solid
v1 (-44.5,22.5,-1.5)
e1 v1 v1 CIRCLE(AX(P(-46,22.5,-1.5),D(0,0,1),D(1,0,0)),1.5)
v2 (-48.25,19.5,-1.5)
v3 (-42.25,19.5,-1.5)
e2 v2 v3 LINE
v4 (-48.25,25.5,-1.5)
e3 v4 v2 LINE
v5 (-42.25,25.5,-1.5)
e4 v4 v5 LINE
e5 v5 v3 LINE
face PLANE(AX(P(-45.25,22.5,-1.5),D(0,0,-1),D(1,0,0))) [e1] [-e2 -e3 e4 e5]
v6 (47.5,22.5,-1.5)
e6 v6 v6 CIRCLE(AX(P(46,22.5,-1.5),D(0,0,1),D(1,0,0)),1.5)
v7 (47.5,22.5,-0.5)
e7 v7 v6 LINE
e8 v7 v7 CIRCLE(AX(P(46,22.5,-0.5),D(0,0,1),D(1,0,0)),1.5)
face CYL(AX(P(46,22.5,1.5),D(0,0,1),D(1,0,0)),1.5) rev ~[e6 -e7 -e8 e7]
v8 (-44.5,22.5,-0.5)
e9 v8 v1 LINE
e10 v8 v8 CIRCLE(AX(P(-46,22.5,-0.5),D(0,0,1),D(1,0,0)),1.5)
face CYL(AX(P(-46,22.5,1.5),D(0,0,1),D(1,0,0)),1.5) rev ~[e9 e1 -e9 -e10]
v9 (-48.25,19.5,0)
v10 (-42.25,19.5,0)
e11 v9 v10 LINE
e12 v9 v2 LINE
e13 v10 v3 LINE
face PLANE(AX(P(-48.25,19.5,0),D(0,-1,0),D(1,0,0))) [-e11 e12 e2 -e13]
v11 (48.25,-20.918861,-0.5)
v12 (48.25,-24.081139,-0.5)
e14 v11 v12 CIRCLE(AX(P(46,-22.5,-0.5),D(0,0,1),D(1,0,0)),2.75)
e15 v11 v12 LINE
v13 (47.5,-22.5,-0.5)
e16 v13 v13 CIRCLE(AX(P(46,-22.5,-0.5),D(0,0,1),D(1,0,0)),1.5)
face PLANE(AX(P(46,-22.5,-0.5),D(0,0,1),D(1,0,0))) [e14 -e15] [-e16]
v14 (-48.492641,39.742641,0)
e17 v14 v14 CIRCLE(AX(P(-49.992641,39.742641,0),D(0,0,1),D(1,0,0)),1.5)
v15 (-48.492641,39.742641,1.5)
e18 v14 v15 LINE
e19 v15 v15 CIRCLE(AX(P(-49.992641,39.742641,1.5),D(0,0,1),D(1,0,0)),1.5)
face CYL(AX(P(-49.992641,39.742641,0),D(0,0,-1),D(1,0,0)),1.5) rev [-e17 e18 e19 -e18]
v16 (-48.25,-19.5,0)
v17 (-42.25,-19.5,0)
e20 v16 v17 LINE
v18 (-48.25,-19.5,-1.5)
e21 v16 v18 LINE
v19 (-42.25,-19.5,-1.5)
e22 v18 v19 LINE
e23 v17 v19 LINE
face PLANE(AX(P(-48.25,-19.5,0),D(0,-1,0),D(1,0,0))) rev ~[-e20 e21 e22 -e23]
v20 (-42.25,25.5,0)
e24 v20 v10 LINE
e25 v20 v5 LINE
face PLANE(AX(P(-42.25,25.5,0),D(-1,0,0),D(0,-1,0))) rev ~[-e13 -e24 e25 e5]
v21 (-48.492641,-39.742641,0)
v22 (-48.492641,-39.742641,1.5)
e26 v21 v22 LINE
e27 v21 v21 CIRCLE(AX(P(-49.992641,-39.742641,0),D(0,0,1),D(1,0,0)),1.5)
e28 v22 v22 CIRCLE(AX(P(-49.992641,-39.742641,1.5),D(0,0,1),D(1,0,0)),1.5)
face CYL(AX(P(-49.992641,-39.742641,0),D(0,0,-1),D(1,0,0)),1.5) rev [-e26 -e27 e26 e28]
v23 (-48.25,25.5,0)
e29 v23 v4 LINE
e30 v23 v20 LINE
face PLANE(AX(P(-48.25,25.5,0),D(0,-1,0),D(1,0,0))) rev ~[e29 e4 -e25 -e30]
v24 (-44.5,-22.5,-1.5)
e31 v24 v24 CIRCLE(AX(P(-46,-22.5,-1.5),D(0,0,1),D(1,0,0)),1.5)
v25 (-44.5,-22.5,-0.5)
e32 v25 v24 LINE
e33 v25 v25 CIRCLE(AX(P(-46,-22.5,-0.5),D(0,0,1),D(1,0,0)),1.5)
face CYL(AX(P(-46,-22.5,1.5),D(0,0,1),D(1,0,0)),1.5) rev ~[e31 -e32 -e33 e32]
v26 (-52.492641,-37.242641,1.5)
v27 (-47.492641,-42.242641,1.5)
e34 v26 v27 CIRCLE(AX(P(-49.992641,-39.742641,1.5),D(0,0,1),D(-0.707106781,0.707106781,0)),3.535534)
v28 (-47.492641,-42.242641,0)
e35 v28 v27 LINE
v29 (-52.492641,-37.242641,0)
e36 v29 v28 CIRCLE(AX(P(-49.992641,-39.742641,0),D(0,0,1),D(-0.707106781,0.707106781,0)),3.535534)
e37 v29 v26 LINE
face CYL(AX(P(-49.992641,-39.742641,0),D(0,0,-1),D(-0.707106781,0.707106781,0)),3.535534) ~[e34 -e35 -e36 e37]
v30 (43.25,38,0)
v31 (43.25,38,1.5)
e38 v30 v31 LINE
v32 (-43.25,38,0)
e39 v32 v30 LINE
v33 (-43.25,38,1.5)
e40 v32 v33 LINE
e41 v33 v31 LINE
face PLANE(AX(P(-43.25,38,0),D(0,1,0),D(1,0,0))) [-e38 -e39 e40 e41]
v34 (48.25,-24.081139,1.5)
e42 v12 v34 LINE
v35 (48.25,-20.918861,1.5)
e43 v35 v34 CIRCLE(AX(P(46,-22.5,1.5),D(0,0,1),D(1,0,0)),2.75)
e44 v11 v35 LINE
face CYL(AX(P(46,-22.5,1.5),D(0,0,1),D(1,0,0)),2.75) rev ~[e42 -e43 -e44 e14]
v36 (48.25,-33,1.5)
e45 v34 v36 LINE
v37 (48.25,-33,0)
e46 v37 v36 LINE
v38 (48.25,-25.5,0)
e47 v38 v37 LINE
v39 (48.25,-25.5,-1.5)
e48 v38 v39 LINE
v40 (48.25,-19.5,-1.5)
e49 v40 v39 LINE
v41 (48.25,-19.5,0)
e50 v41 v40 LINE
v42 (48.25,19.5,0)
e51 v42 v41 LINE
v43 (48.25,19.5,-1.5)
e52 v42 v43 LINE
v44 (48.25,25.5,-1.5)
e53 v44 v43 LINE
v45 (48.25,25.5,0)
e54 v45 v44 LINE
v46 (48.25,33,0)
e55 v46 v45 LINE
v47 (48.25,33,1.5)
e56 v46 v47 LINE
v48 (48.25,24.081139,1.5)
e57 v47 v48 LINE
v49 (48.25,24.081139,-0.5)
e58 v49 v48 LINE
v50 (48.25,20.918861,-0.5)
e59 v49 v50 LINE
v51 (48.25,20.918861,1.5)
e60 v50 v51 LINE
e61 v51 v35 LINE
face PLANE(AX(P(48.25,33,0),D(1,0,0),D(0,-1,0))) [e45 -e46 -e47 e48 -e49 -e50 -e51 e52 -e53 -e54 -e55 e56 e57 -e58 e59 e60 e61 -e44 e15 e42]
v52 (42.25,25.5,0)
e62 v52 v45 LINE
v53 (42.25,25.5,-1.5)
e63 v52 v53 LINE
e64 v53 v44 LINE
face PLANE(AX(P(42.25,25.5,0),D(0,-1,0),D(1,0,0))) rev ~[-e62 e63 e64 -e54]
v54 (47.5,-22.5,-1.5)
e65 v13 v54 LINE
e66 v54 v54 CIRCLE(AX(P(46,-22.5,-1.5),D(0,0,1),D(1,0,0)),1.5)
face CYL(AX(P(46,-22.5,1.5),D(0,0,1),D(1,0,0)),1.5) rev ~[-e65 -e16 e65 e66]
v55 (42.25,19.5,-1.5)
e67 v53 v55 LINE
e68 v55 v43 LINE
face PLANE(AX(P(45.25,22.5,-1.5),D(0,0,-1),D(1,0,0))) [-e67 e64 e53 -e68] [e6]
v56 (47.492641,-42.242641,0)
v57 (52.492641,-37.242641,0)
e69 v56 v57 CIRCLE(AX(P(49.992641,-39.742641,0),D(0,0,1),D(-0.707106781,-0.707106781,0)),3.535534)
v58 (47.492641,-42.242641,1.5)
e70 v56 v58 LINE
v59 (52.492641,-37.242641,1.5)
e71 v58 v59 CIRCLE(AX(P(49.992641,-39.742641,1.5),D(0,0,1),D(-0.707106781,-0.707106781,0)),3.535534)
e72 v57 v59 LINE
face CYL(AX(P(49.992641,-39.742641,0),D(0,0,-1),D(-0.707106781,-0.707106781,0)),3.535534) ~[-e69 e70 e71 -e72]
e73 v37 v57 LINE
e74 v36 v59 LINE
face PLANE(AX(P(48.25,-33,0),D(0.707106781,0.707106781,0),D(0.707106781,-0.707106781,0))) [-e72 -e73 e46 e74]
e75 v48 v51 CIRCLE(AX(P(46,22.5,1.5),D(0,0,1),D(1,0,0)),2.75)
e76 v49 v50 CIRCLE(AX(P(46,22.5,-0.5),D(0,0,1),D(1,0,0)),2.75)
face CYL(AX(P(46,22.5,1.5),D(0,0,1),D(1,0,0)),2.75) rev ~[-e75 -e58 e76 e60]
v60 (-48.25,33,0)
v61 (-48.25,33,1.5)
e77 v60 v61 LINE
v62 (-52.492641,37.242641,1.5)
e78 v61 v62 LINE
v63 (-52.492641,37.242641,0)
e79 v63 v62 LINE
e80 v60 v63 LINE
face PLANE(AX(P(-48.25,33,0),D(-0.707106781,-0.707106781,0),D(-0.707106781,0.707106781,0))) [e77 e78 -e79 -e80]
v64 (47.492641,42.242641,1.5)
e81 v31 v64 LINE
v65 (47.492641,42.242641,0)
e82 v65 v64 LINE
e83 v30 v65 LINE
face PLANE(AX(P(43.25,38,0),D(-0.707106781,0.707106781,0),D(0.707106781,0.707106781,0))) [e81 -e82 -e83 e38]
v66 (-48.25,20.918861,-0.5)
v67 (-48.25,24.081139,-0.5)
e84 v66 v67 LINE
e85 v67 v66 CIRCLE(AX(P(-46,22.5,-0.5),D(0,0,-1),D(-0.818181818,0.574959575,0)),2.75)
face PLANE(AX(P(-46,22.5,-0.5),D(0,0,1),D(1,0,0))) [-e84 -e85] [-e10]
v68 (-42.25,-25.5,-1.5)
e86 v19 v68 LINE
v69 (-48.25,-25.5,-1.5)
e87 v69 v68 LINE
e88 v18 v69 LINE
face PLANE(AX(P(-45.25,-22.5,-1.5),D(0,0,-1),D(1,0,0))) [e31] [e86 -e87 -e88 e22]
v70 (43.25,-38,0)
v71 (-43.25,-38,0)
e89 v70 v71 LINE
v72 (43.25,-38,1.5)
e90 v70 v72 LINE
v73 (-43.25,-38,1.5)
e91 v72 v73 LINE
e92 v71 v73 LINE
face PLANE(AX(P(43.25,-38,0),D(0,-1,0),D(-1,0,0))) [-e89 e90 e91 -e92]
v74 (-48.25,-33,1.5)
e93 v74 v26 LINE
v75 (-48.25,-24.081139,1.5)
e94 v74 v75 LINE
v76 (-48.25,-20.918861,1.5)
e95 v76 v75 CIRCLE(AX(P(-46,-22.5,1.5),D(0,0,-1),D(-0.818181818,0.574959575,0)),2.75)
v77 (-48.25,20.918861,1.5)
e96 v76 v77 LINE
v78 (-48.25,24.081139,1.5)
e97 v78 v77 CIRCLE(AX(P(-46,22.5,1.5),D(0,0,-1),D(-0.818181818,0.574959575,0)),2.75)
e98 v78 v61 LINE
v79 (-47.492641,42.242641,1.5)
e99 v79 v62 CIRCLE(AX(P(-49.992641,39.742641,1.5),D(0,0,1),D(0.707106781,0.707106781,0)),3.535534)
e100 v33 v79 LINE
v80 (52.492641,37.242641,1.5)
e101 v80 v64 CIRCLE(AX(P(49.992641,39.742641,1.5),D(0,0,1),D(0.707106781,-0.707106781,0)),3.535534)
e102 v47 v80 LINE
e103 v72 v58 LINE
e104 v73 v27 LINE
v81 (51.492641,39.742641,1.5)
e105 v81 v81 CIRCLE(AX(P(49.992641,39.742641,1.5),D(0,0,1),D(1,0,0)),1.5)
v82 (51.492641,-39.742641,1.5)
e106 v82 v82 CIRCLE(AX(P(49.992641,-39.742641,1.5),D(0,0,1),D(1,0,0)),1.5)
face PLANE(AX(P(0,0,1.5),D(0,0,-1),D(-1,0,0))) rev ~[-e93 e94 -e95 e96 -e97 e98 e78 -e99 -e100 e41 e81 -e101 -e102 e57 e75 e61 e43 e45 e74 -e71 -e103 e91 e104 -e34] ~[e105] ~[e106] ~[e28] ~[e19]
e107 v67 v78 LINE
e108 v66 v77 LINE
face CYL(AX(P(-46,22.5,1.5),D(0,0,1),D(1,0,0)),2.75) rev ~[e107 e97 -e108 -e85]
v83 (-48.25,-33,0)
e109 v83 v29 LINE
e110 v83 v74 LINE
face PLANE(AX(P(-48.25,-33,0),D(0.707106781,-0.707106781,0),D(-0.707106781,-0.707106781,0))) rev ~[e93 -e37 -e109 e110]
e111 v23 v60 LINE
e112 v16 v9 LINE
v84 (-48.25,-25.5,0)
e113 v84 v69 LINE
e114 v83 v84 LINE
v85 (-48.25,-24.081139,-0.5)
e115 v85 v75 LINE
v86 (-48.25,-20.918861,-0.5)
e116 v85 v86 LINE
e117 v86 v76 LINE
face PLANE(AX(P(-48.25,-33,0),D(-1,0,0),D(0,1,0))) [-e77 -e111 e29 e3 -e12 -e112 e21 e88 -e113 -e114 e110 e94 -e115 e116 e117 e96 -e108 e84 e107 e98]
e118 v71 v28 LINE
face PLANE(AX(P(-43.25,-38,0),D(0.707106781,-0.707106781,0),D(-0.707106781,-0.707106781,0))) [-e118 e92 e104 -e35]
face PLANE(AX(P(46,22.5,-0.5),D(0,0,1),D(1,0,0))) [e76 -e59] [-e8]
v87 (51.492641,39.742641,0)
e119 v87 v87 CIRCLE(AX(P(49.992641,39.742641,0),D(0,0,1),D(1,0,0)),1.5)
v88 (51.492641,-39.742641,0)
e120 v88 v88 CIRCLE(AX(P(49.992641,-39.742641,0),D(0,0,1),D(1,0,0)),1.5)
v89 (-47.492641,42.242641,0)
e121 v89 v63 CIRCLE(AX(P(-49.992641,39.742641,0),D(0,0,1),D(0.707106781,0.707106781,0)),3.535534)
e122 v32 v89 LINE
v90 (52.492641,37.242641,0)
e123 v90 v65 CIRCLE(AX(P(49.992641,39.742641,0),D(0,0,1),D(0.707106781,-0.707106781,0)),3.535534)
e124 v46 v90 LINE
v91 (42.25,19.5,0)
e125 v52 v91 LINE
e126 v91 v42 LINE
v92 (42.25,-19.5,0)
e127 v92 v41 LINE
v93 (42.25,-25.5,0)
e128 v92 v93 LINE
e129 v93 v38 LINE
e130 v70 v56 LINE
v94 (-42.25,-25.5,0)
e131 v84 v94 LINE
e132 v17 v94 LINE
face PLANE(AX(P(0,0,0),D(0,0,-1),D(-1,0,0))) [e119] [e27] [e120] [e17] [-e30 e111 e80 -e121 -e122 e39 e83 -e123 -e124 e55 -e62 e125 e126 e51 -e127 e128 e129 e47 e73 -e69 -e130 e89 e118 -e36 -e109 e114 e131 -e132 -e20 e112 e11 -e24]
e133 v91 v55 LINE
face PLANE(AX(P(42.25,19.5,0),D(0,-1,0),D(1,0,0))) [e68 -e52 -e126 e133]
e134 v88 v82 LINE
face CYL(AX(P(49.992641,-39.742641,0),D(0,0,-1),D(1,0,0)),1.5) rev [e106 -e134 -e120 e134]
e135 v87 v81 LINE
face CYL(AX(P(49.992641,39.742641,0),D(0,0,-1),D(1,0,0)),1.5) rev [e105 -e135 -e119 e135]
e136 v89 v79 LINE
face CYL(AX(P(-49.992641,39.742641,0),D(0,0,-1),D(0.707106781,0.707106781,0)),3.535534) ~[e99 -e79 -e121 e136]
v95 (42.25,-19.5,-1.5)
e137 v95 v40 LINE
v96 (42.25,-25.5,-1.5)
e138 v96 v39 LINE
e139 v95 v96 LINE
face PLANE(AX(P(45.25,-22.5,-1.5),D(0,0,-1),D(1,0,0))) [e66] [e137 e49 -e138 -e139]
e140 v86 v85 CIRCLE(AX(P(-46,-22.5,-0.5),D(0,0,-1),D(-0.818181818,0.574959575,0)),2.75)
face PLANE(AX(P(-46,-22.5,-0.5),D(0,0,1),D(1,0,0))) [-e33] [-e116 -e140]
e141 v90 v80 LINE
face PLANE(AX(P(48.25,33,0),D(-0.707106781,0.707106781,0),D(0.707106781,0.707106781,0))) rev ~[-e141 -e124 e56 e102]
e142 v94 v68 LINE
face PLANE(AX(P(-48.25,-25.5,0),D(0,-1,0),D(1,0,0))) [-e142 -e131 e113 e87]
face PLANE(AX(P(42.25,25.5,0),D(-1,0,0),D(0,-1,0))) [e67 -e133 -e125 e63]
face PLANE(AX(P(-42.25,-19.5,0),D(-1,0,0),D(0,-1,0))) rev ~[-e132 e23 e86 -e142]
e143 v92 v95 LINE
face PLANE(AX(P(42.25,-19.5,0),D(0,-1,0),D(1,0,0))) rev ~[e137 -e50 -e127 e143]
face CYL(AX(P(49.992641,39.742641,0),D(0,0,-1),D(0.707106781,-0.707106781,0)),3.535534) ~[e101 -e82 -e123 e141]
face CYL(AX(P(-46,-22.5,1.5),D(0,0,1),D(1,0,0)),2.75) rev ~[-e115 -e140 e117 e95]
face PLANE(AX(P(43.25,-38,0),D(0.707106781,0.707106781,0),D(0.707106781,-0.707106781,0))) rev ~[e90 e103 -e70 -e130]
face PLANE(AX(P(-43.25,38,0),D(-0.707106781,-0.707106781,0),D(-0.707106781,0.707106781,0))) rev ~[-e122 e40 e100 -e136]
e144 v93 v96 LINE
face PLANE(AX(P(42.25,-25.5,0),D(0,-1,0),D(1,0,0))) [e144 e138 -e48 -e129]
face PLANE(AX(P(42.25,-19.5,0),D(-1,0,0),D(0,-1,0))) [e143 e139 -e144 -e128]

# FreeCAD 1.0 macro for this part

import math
import FreeCAD as App
import Part
import Sketcher
from FreeCAD import Vector


def add_polygon(sketch, points):
    """Adds a closed chain of lines whose ends are joined by coincident constraints."""
    first, n = sketch.GeometryCount, len(points)
    for a, b in zip(points, points[1:] + points[:1]):
        sketch.addGeometry(Part.LineSegment(App.Vector(*a, 0), App.Vector(*b, 0)), False)
    for i in range(n):
        sketch.addConstraint(Sketcher.Constraint("Coincident", first + i, 2, first + (i + 1) % n, 1))

doc = App.newDocument("Part")
body = doc.addObject("PartDesign::Body", "Body")

# Sketch on XY plane
sketch1 = doc.addObject("Sketcher::SketchObject", "Sketch")
body.addObject(sketch1)
sketch1.AttachmentSupport = (doc.XY_Plane, [""])
sketch1.MapMode = "FlatFace"
sketch1.addGeometry([
    Part.LineSegment(Vector(-48.2, 33, 0), Vector(-48.2, -33, 0)),  # 0
    Part.LineSegment(Vector(-48.2, -33, 0), Vector(-52.5, -37.2, 0)),  # 1
    Part.ArcOfCircle(Part.Circle(Vector(-50, -39.7, 0), Vector(0, 0, 1), 3.5), math.radians(135), math.radians(315)),  # 2
    Part.LineSegment(Vector(-47.5, -42.2, 0), Vector(-43.2, -38, 0)),  # 3
    Part.LineSegment(Vector(-43.2, -38, 0), Vector(43.2, -38, 0)),  # 4
    Part.LineSegment(Vector(43.2, -38, 0), Vector(47.5, -42.2, 0)),  # 5
    Part.ArcOfCircle(Part.Circle(Vector(50, -39.7, 0), Vector(0, 0, 1), 3.5), math.radians(-135), math.radians(45)),  # 6
    Part.LineSegment(Vector(52.5, -37.2, 0), Vector(48.2, -33, 0)),  # 7
    Part.LineSegment(Vector(48.2, -33, 0), Vector(48.2, 33, 0)),  # 8
    Part.LineSegment(Vector(48.2, 33, 0), Vector(52.5, 37.2, 0)),  # 9
    Part.ArcOfCircle(Part.Circle(Vector(50, 39.7, 0), Vector(0, 0, 1), 3.5), math.radians(-45), math.radians(135)),  # 10
    Part.LineSegment(Vector(47.5, 42.2, 0), Vector(43.2, 38, 0)),  # 11
    Part.LineSegment(Vector(43.2, 38, 0), Vector(-43.2, 38, 0)),  # 12
    Part.LineSegment(Vector(-43.2, 38, 0), Vector(-47.5, 42.2, 0)),  # 13
    Part.ArcOfCircle(Part.Circle(Vector(-50, 39.7, 0), Vector(0, 0, 1), 3.5), math.radians(45), math.radians(225)),  # 14
    Part.LineSegment(Vector(-52.5, 37.2, 0), Vector(-48.2, 33, 0)),  # 15
    Part.Circle(Vector(50, -39.7, 0), Vector(0, 0, 1), 1.5),  # 16
    Part.Circle(Vector(-50, -39.7, 0), Vector(0, 0, 1), 1.5),  # 17
    Part.Circle(Vector(50, 39.7, 0), Vector(0, 0, 1), 1.5),  # 18
    Part.Circle(Vector(-50, 39.7, 0), Vector(0, 0, 1), 1.5),  # 19
], False)
sketch1.addConstraint([
    Sketcher.Constraint("Coincident", 0, 2, 1, 1),
    Sketcher.Constraint("Tangent", 1, 2, 2, 1),
    Sketcher.Constraint("Tangent", 2, 2, 3, 1),
    Sketcher.Constraint("Coincident", 3, 2, 4, 1),
    Sketcher.Constraint("Coincident", 4, 2, 5, 1),
    Sketcher.Constraint("Tangent", 5, 2, 6, 1),
    Sketcher.Constraint("Tangent", 6, 2, 7, 1),
    Sketcher.Constraint("Coincident", 7, 2, 8, 1),
    Sketcher.Constraint("Coincident", 8, 2, 9, 1),
    Sketcher.Constraint("Tangent", 9, 2, 10, 1),
    Sketcher.Constraint("Tangent", 10, 2, 11, 1),
    Sketcher.Constraint("Coincident", 11, 2, 12, 1),
    Sketcher.Constraint("Coincident", 12, 2, 13, 1),
    Sketcher.Constraint("Tangent", 13, 2, 14, 1),
    Sketcher.Constraint("Tangent", 14, 2, 15, 1),
    Sketcher.Constraint("Coincident", 15, 2, 0, 1),
    Sketcher.Constraint("Vertical", 0),
    Sketcher.Constraint("Horizontal", 4),
    Sketcher.Constraint("Vertical", 8),
    Sketcher.Constraint("Horizontal", 12),
    Sketcher.Constraint("Coincident", 16, 3, 6, 3),
    Sketcher.Constraint("Coincident", 17, 3, 2, 3),
    Sketcher.Constraint("Coincident", 18, 3, 10, 3),
    Sketcher.Constraint("Coincident", 19, 3, 14, 3),
    Sketcher.Constraint("Equal", 2, 6),
    Sketcher.Constraint("Equal", 6, 10),
    Sketcher.Constraint("Equal", 10, 14),
    Sketcher.Constraint("Equal", 16, 17),
    Sketcher.Constraint("Equal", 17, 18),
    Sketcher.Constraint("Equal", 18, 19),
    Sketcher.Constraint("Symmetric", 2, 3, 10, 3, -1, 1),
    Sketcher.Constraint("Symmetric", 6, 3, 14, 3, -1, 1),
    Sketcher.Constraint("Symmetric", 0, 2, 8, 2, -1, 1),
    Sketcher.Constraint("Symmetric", 3, 2, 11, 2, -1, 1),
    Sketcher.Constraint("Symmetric", 2, 3, 6, 3, -2),
    Sketcher.Constraint("Parallel", 1, 3),
    Sketcher.Constraint("Perpendicular", 3, 5),
    Sketcher.Constraint("Parallel", 5, 7),
    Sketcher.Constraint("Perpendicular", 11, 13),
    Sketcher.Constraint("Parallel", 13, 15),
    Sketcher.Constraint("Horizontal", 2, 2, 5, 2),
    Sketcher.Constraint("Equal", 1, 3),
    Sketcher.Constraint("Diameter", 16, 3.0),
    Sketcher.Constraint("DistanceY", 0, 2, 0, 1, 66.0),
    Sketcher.Constraint("Distance", 1, 6.0),
    Sketcher.Constraint("DistanceX", 4, 1, 4, 2, 86.5),
    Sketcher.Constraint("DistanceY", 3, 2, -1, 1, 38.0),
])
pad1 = doc.addObject("PartDesign::Pad", "Pad")
body.addObject(pad1)
pad1.Profile = sketch1
pad1.Length = 1.5

# Sketch on XY plane
sketch2 = doc.addObject("Sketcher::SketchObject", "Sketch001")
body.addObject(sketch2)
sketch2.AttachmentSupport = (doc.XY_Plane, [""])
sketch2.MapMode = "FlatFace"
add_polygon(sketch2, [(-48, -26), (-48, -20), (-42, -20), (-42, -26)])  # lines 0-3
add_polygon(sketch2, [(-48, 20), (-48, 26), (-42, 26), (-42, 20)])  # lines 4-7
add_polygon(sketch2, [(42, -26), (42, -20), (48, -20), (48, -26)])  # lines 8-11
add_polygon(sketch2, [(42, 20), (42, 26), (48, 26), (48, 20)])  # lines 12-15
sketch2.addConstraint([
    Sketcher.Constraint("Vertical", 0),
    Sketcher.Constraint("Horizontal", 1),
    Sketcher.Constraint("Vertical", 2),
    Sketcher.Constraint("Horizontal", 3),
    Sketcher.Constraint("Vertical", 4),
    Sketcher.Constraint("Horizontal", 5),
    Sketcher.Constraint("Vertical", 6),
    Sketcher.Constraint("Horizontal", 7),
    Sketcher.Constraint("Vertical", 8),
    Sketcher.Constraint("Horizontal", 9),
    Sketcher.Constraint("Vertical", 10),
    Sketcher.Constraint("Horizontal", 11),
    Sketcher.Constraint("Vertical", 12),
    Sketcher.Constraint("Horizontal", 13),
    Sketcher.Constraint("Vertical", 14),
    Sketcher.Constraint("Horizontal", 15),
    Sketcher.Constraint("Symmetric", 6, 2, 8, 2, -1, 1),
    Sketcher.Constraint("Symmetric", 4, 2, 10, 2, -1, 1),
    Sketcher.Constraint("Symmetric", 2, 2, 12, 2, -1, 1),
    Sketcher.Constraint("Symmetric", 0, 2, 14, 2, -1, 1),
    Sketcher.Constraint("Symmetric", 1, 2, 8, 2, -2),
    Sketcher.Constraint("Symmetric", 3, 2, 10, 2, -2),
    Sketcher.Constraint("Equal", 15, 0),
    Sketcher.Constraint("DistanceX", 1, 1, 1, 2, 6.0),
    Sketcher.Constraint("DistanceY", 0, 2, 4, 2, 45.0),
    Sketcher.Constraint("DistanceX", 1, 2, 8, 2, 84.5),
])
pad2 = doc.addObject("PartDesign::Pad", "Pad001")
body.addObject(pad2)
pad2.Profile = sketch2
pad2.Length = 1.5
pad2.Reversed = True

# Sketch on XY plane
sketch3 = doc.addObject("Sketcher::SketchObject", "Sketch002")
body.addObject(sketch3)
sketch3.AttachmentSupport = (doc.XY_Plane, [""])
sketch3.MapMode = "FlatFace"
sketch3.AttachmentOffset = App.Placement(Vector(0, 0, 1.5), App.Rotation())
sketch3.addGeometry([
    Part.Circle(Vector(-46, 22.5, 0), Vector(0, 0, 1), 1.5),
    Part.Circle(Vector(-46, -22.5, 0), Vector(0, 0, 1), 1.5),
    Part.Circle(Vector(46, 22.5, 0), Vector(0, 0, 1), 1.5),
    Part.Circle(Vector(46, -22.5, 0), Vector(0, 0, 1), 1.5),
], False)
sketch3.addConstraint([
    Sketcher.Constraint("Equal", 0, 1),
    Sketcher.Constraint("Equal", 1, 2),
    Sketcher.Constraint("Equal", 2, 3),
    Sketcher.Constraint("Symmetric", 1, 3, 2, 3, -1, 1),
    Sketcher.Constraint("Symmetric", 0, 3, 3, 3, -1, 1),
    Sketcher.Constraint("Symmetric", 0, 3, 2, 3, -2),
    Sketcher.Constraint("Diameter", 0, 3.0),
    Sketcher.Constraint("DistanceX", 0, 3, -1, 1, 46.0),
    Sketcher.Constraint("DistanceY", 1, 3, 0, 3, 45.0),
])
pocket1 = doc.addObject("PartDesign::Pocket", "Pocket")
body.addObject(pocket1)
pocket1.Profile = sketch3
pocket1.Type = "ThroughAll"

# Sketch on XY plane
sketch4 = doc.addObject("Sketcher::SketchObject", "Sketch003")
body.addObject(sketch4)
sketch4.AttachmentSupport = (doc.XY_Plane, [""])
sketch4.MapMode = "FlatFace"
sketch4.AttachmentOffset = App.Placement(Vector(0, 0, 1.5), App.Rotation())
sketch4.addGeometry([
    Part.Circle(Vector(46, 22.5, 0), Vector(0, 0, 1), 2.8),
    Part.Circle(Vector(-46, 22.5, 0), Vector(0, 0, 1), 2.8),
    Part.Circle(Vector(-46, -22.5, 0), Vector(0, 0, 1), 2.8),
    Part.Circle(Vector(46, -22.5, 0), Vector(0, 0, 1), 2.8),
], False)
sketch4.addConstraint([
    Sketcher.Constraint("Equal", 0, 1),
    Sketcher.Constraint("Equal", 1, 2),
    Sketcher.Constraint("Equal", 2, 3),
    Sketcher.Constraint("Symmetric", 0, 3, 2, 3, -1, 1),
    Sketcher.Constraint("Symmetric", 1, 3, 3, 3, -1, 1),
    Sketcher.Constraint("Symmetric", 0, 3, 1, 3, -2),
    Sketcher.Constraint("Diameter", 0, 5.5),
    Sketcher.Constraint("DistanceX", -1, 1, 0, 3, 46.0),
    Sketcher.Constraint("DistanceY", 2, 3, 1, 3, 45.0),
])
pocket2 = doc.addObject("PartDesign::Pocket", "Pocket001")
body.addObject(pocket2)
pocket2.Profile = sketch4
pocket2.Length = 2

doc.recompute()
